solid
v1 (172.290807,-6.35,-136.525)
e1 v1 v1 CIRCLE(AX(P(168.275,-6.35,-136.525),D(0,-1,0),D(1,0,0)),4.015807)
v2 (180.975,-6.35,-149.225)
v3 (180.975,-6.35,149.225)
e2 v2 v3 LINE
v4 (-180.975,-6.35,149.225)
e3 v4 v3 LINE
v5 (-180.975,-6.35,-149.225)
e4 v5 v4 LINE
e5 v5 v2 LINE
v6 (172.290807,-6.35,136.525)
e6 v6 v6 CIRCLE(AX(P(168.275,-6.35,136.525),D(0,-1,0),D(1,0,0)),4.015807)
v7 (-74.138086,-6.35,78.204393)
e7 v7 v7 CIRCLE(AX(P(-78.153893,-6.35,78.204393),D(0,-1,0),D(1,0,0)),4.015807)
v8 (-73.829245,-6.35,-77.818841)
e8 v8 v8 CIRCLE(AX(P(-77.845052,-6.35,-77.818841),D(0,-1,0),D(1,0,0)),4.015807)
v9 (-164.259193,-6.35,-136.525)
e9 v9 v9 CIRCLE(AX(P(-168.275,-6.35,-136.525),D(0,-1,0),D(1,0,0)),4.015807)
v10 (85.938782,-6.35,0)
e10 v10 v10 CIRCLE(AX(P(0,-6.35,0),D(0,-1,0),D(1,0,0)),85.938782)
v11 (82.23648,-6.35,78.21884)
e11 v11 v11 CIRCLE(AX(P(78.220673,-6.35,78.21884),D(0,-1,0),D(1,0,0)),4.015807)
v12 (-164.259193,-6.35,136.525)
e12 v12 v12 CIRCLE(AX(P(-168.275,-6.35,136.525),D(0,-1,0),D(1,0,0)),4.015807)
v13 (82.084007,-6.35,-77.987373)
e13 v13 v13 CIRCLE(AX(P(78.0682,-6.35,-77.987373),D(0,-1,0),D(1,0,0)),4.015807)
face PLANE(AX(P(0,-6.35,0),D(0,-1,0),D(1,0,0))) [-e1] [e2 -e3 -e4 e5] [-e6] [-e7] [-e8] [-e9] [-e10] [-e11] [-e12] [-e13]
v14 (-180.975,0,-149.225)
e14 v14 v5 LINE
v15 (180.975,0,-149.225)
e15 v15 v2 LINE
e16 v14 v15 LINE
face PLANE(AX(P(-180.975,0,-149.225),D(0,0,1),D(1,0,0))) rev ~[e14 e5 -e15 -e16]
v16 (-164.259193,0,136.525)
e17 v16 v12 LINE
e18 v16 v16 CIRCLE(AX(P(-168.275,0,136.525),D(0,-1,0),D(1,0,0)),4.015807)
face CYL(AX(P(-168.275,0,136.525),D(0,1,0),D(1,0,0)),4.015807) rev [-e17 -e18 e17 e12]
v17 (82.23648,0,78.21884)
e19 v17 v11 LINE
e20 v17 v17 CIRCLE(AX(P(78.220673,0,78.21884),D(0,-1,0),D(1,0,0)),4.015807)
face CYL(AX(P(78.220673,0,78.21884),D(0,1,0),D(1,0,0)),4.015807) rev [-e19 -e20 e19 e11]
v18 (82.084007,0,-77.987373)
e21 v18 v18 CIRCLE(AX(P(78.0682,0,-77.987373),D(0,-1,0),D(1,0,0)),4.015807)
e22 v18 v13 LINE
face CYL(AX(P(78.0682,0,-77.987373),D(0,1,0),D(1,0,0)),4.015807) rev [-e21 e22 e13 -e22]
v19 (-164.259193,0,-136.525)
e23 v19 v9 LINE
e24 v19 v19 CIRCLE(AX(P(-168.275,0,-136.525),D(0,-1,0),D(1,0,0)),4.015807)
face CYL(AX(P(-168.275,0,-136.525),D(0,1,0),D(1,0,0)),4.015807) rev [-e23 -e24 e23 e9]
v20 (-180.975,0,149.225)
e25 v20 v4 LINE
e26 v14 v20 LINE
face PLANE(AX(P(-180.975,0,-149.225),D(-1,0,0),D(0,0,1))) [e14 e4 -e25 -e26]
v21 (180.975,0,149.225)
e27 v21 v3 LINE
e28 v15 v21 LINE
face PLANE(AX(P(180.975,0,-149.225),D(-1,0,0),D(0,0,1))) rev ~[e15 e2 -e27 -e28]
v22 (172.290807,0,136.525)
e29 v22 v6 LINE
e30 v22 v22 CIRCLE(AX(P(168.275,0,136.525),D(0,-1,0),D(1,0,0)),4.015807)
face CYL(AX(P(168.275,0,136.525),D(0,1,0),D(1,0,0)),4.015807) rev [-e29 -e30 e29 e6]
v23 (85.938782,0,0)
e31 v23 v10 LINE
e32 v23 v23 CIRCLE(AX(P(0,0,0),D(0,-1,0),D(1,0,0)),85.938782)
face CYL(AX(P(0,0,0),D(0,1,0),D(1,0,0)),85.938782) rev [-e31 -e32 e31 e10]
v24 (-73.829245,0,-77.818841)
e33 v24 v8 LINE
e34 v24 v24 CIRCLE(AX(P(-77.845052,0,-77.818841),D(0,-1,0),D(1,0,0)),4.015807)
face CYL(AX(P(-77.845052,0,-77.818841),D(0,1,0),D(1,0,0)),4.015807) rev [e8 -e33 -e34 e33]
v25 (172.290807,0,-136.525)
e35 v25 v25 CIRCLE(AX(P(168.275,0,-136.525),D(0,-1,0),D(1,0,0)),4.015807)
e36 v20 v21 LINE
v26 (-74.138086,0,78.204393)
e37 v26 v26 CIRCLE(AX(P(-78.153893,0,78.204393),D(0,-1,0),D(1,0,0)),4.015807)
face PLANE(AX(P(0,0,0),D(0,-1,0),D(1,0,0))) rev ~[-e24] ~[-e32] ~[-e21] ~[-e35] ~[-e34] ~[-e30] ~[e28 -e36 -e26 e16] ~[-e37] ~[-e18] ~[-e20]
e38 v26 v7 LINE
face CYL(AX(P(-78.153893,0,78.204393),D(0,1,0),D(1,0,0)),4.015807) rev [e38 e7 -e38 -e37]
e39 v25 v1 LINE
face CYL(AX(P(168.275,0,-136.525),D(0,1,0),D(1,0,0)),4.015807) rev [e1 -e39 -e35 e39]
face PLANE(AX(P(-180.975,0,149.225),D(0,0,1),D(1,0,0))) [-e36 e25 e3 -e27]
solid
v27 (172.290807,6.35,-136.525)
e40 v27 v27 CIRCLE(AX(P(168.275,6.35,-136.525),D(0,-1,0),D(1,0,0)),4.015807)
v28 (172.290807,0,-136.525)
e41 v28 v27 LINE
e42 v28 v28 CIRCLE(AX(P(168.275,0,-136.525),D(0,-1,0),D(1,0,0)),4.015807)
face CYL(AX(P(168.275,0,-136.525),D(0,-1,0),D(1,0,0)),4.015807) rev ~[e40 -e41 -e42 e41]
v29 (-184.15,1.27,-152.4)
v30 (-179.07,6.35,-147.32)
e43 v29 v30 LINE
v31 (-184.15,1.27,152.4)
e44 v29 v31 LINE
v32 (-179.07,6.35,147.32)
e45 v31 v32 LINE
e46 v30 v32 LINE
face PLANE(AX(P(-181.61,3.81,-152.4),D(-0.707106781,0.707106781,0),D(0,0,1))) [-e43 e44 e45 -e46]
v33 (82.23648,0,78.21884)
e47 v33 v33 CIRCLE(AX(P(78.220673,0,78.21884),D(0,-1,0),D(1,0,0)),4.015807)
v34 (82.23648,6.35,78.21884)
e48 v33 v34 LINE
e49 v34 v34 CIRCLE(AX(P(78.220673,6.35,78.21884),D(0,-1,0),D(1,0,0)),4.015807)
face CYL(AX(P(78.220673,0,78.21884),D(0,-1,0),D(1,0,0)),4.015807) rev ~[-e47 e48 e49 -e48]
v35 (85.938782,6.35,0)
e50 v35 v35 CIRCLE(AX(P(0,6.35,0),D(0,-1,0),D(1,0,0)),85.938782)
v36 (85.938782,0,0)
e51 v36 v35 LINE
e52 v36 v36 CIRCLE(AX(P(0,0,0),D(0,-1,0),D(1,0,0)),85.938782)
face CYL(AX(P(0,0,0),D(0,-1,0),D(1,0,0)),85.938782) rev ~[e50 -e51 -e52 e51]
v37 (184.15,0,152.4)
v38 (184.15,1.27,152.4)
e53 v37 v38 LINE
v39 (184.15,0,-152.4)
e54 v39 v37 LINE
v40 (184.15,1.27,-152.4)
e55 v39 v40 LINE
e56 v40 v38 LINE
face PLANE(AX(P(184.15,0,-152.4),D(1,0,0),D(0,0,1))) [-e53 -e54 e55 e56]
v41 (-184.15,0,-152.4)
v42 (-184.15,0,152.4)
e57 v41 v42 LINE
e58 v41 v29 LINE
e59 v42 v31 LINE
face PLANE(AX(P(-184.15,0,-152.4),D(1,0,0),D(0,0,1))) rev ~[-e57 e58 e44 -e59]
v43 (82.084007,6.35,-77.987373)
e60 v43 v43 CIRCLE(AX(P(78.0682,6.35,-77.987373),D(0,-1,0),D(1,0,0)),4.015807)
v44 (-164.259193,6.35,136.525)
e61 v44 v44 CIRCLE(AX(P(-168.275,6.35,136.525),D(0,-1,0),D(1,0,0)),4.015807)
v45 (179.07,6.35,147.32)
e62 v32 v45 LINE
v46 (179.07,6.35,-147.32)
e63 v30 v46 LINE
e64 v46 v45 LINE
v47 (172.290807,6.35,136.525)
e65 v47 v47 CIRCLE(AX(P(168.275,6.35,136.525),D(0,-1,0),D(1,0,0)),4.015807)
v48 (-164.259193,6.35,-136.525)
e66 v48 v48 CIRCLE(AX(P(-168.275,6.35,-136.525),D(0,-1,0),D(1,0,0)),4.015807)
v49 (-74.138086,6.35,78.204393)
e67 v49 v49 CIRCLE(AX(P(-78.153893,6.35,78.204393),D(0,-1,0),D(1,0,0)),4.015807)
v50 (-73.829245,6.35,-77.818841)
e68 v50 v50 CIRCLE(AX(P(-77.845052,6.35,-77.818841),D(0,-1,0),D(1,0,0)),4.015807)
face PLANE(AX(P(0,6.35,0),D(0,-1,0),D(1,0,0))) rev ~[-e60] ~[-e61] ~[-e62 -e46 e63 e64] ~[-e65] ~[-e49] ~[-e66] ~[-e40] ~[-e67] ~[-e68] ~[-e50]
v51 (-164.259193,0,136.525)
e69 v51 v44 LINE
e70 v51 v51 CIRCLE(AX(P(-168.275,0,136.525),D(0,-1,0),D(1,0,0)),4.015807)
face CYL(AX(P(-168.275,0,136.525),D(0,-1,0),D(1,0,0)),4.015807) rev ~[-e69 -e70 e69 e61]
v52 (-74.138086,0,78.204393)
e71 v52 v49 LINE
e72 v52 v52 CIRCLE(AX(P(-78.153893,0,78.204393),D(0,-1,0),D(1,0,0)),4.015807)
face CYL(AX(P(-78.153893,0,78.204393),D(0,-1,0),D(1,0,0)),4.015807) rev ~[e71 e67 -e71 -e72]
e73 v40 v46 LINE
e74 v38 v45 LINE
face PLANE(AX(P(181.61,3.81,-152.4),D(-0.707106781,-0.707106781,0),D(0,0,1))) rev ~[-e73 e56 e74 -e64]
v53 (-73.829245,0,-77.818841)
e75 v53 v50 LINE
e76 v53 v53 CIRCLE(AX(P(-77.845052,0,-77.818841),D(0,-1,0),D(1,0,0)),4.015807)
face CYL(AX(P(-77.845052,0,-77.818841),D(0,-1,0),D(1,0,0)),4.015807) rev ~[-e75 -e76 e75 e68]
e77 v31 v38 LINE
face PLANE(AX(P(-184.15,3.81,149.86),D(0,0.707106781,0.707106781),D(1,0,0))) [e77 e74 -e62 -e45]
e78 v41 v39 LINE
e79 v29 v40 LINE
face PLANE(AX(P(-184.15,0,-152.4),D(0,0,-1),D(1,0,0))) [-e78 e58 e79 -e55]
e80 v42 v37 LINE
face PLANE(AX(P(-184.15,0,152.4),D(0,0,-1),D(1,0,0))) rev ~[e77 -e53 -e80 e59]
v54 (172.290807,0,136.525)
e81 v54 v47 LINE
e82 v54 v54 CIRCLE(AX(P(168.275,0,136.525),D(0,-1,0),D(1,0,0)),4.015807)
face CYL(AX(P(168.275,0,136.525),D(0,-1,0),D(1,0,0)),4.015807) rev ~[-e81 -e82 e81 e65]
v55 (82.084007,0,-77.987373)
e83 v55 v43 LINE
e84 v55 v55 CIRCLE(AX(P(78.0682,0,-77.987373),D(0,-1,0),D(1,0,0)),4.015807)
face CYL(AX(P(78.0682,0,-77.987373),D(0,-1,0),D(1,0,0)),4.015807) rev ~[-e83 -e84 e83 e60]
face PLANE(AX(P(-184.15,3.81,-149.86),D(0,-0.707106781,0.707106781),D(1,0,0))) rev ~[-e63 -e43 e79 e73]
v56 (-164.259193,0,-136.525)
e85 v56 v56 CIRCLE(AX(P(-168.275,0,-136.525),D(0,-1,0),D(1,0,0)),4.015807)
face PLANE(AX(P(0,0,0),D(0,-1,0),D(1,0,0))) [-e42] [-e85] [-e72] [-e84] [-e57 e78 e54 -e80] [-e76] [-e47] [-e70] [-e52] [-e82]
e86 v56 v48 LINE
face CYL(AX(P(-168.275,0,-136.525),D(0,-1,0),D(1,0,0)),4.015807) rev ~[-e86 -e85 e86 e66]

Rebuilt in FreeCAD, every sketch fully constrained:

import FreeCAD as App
import Part
import Sketcher
Q = App.Units.Quantity


def edges_at(feature, points):
    """Names of the edges that pass closest to the given points."""
    edges = feature.Shape.Edges
    near = lambda p: min(range(len(edges)), key=lambda i: edges[i].distToShape(Part.Vertex(*p))[0])
    return sorted({f"Edge{near(p) + 1}" for p in points})


def add_polygon(sketch, points):
    """Adds a closed chain of lines whose ends are joined by coincident constraints."""
    first, n = sketch.GeometryCount, len(points)
    for a, b in zip(points, points[1:] + points[:1]):
        sketch.addGeometry(Part.LineSegment(App.Vector(*a, 0), App.Vector(*b, 0)), False)
    for i in range(n):
        sketch.addConstraint(Sketcher.Constraint("Coincident", first + i, 2, first + (i + 1) % n, 1))

doc = App.newDocument("Part")
params = doc.addObject("Spreadsheet::Sheet", "Params")
for row, (alias, value) in enumerate([
    ("sketch1_width", "14.25 in"),
    ("sketch1_height", "11.75 in"),
    ("pad1_length", "0.25 in"),
    ("sketch2_height", "12 in"),
    ("sketch2_width", "14.5 in"),
    ("pad2_length", "0.25 in"),
    ("chamfer_size", "0.2 in"),
], start=1):
    params.set(f"A{row}", alias)
    params.set(f"B{row}", "=" + value)
    params.setAlias(f"B{row}", alias)

body = doc.addObject("PartDesign::Body", "Body")

# Sketch on XZ plane
sketch1 = doc.addObject("Sketcher::SketchObject", "Sketch")
body.addObject(sketch1)
sketch1.AttachmentSupport = (doc.XZ_Plane, [""])
sketch1.MapMode = "FlatFace"
add_polygon(sketch1, [(-180.975, 149.225), (-180.975, -149.225), (180.975, -149.225), (180.975, 149.225)])  # lines 0-3
sketch1.addGeometry(Part.Circle(App.Vector(-168.275, -136.525, 0), App.Vector(0, 0, 1), 4.015807), False)  # 4
sketch1.addGeometry(Part.Circle(App.Vector(-77.845052, -77.818841, 0), App.Vector(0, 0, 1), 4.015807), False)  # 5
sketch1.addGeometry(Part.Circle(App.Vector(78.0682, -77.987373, 0), App.Vector(0, 0, 1), 4.015807), False)  # 6
sketch1.addGeometry(Part.Circle(App.Vector(168.275, -136.525, 0), App.Vector(0, 0, 1), 4.015807), False)  # 7
sketch1.addGeometry(Part.Circle(App.Vector(-168.275, 136.525, 0), App.Vector(0, 0, 1), 4.015807), False)  # 8
sketch1.addGeometry(Part.Circle(App.Vector(-78.153893, 78.204393, 0), App.Vector(0, 0, 1), 4.015807), False)  # 9
sketch1.addGeometry(Part.Circle(App.Vector(0, 0, 0), App.Vector(0, 0, 1), 85.938782), False)  # 10
sketch1.addGeometry(Part.Circle(App.Vector(78.220673, 78.21884, 0), App.Vector(0, 0, 1), 4.015807), False)  # 11
sketch1.addGeometry(Part.Circle(App.Vector(168.275, 136.525, 0), App.Vector(0, 0, 1), 4.015807), False)  # 12
sketch1.addConstraint(Sketcher.Constraint("Vertical", 0))
sketch1.addConstraint(Sketcher.Constraint("Horizontal", 1))
sketch1.addConstraint(Sketcher.Constraint("Vertical", 2))
sketch1.addConstraint(Sketcher.Constraint("Horizontal", 3))
sketch1.addConstraint(Sketcher.Constraint("Coincident", 10, 3, -1, 1))
sketch1.addConstraint(Sketcher.Constraint("Equal", 4, 5))
sketch1.addConstraint(Sketcher.Constraint("Equal", 5, 6))
sketch1.addConstraint(Sketcher.Constraint("Equal", 6, 7))
sketch1.addConstraint(Sketcher.Constraint("Equal", 7, 8))
sketch1.addConstraint(Sketcher.Constraint("Equal", 8, 9))
sketch1.addConstraint(Sketcher.Constraint("Equal", 9, 11))
sketch1.addConstraint(Sketcher.Constraint("Equal", 11, 12))
sketch1.addConstraint(Sketcher.Constraint("Symmetric", 7, 3, 8, 3, -1, 1))
sketch1.addConstraint(Sketcher.Constraint("Symmetric", 4, 3, 12, 3, -1, 1))
sketch1.addConstraint(Sketcher.Constraint("Symmetric", 0, 2, 2, 2, -1, 1))
sketch1.addConstraint(Sketcher.Constraint("Symmetric", 4, 3, 7, 3, -2))
sketch1.addConstraint(Sketcher.Constraint("DistanceX", 1, 1, 1, 2, Q("14.25 in")))
sketch1.addConstraint(Sketcher.Constraint("DistanceY", 0, 2, 0, 1, Q("11.75 in")))
sketch1.addConstraint(Sketcher.Constraint("DistanceX", 0, 2, 4, 3, Q("0.5 in")))
sketch1.addConstraint(Sketcher.Constraint("DistanceY", 0, 2, 4, 3, Q("0.5 in")))
sketch1.addConstraint(Sketcher.Constraint("Diameter", 4, Q("8.031614 mm")))
sketch1.addConstraint(Sketcher.Constraint("Diameter", 10, Q("171.877564 mm")))
sketch1.addConstraint(Sketcher.Constraint("DistanceX", -1, 1, 6, 3, Q("78.0682 mm")))
sketch1.addConstraint(Sketcher.Constraint("DistanceX", 5, 3, -1, 1, Q("77.845052 mm")))
sketch1.addConstraint(Sketcher.Constraint("DistanceY", 5, 3, -1, 1, Q("77.818841 mm")))
sketch1.addConstraint(Sketcher.Constraint("DistanceY", -1, 1, 11, 3, Q("78.21884 mm")))
sketch1.addConstraint(Sketcher.Constraint("DistanceY", 6, 3, 5, 3, Q("0.168532 mm")))
sketch1.addConstraint(Sketcher.Constraint("DistanceX", 9, 3, 5, 3, Q("0.308841 mm")))
sketch1.addConstraint(Sketcher.Constraint("DistanceY", -1, 1, 9, 3, Q("78.204393 mm")))
sketch1.addConstraint(Sketcher.Constraint("DistanceX", -1, 1, 11, 3, Q("78.220673 mm")))
sketch1.setExpression("Constraints[20]", "Params.sketch1_width")
sketch1.setExpression("Constraints[21]", "Params.sketch1_height")
pad1 = doc.addObject("PartDesign::Pad", "Pad")
body.addObject(pad1)
pad1.Profile = sketch1
pad1.setExpression("Length", "Params.pad1_length")
body2 = doc.addObject("PartDesign::Body", "Body001")

# Sketch on XZ plane
sketch2 = doc.addObject("Sketcher::SketchObject", "Sketch001")
body2.addObject(sketch2)
sketch2.AttachmentSupport = (doc.getObject("XZ_Plane001"), [""])
sketch2.MapMode = "FlatFace"
add_polygon(sketch2, [(-184.15, 152.4), (-184.15, -152.4), (184.15, -152.4), (184.15, 152.4)])  # lines 0-3
sketch2.addGeometry(Part.Circle(App.Vector(-168.275, -136.525, 0), App.Vector(0, 0, 1), 4.015807), False)  # 4
sketch2.addGeometry(Part.Circle(App.Vector(-77.845052, -77.818841, 0), App.Vector(0, 0, 1), 4.015807), False)  # 5
sketch2.addGeometry(Part.Circle(App.Vector(78.0682, -77.987373, 0), App.Vector(0, 0, 1), 4.015807), False)  # 6
sketch2.addGeometry(Part.Circle(App.Vector(168.275, -136.525, 0), App.Vector(0, 0, 1), 4.015807), False)  # 7
sketch2.addGeometry(Part.Circle(App.Vector(-168.275, 136.525, 0), App.Vector(0, 0, 1), 4.015807), False)  # 8
sketch2.addGeometry(Part.Circle(App.Vector(-78.153893, 78.204393, 0), App.Vector(0, 0, 1), 4.015807), False)  # 9
sketch2.addGeometry(Part.Circle(App.Vector(0, 0, 0), App.Vector(0, 0, 1), 85.938782), False)  # 10
sketch2.addGeometry(Part.Circle(App.Vector(78.220673, 78.21884, 0), App.Vector(0, 0, 1), 4.015807), False)  # 11
sketch2.addGeometry(Part.Circle(App.Vector(168.275, 136.525, 0), App.Vector(0, 0, 1), 4.015807), False)  # 12
sketch2.addConstraint(Sketcher.Constraint("Vertical", 0))
sketch2.addConstraint(Sketcher.Constraint("Horizontal", 1))
sketch2.addConstraint(Sketcher.Constraint("Vertical", 2))
sketch2.addConstraint(Sketcher.Constraint("Horizontal", 3))
sketch2.addConstraint(Sketcher.Constraint("Coincident", 10, 3, -1, 1))
sketch2.addConstraint(Sketcher.Constraint("Equal", 4, 5))
sketch2.addConstraint(Sketcher.Constraint("Equal", 5, 6))
sketch2.addConstraint(Sketcher.Constraint("Equal", 6, 7))
sketch2.addConstraint(Sketcher.Constraint("Equal", 7, 8))
sketch2.addConstraint(Sketcher.Constraint("Equal", 8, 9))
sketch2.addConstraint(Sketcher.Constraint("Equal", 9, 11))
sketch2.addConstraint(Sketcher.Constraint("Equal", 11, 12))
sketch2.addConstraint(Sketcher.Constraint("Symmetric", 7, 3, 8, 3, -1, 1))
sketch2.addConstraint(Sketcher.Constraint("Symmetric", 4, 3, 12, 3, -1, 1))
sketch2.addConstraint(Sketcher.Constraint("Symmetric", 0, 2, 2, 2, -1, 1))
sketch2.addConstraint(Sketcher.Constraint("Symmetric", 4, 3, 7, 3, -2))
sketch2.addConstraint(Sketcher.Constraint("DistanceY", 0, 2, 0, 1, Q("12 in")))
sketch2.addConstraint(Sketcher.Constraint("DistanceX", 1, 1, 1, 2, Q("14.5 in")))
sketch2.addConstraint(Sketcher.Constraint("DistanceX", 4, 3, 7, 3, Q("13.25 in")))
sketch2.addConstraint(Sketcher.Constraint("DistanceY", 4, 3, 8, 3, Q("10.75 in")))
sketch2.addConstraint(Sketcher.Constraint("Diameter", 4, Q("8.031614 mm")))
sketch2.addConstraint(Sketcher.Constraint("Diameter", 10, Q("171.877564 mm")))
sketch2.addConstraint(Sketcher.Constraint("DistanceX", -1, 1, 6, 3, Q("78.0682 mm")))
sketch2.addConstraint(Sketcher.Constraint("DistanceX", 5, 3, -1, 1, Q("77.845052 mm")))
sketch2.addConstraint(Sketcher.Constraint("DistanceY", 5, 3, -1, 1, Q("77.818841 mm")))
sketch2.addConstraint(Sketcher.Constraint("DistanceY", -1, 1, 11, 3, Q("78.21884 mm")))
sketch2.addConstraint(Sketcher.Constraint("DistanceY", 6, 3, 5, 3, Q("0.168532 mm")))
sketch2.addConstraint(Sketcher.Constraint("DistanceX", 9, 3, 5, 3, Q("0.308841 mm")))
sketch2.addConstraint(Sketcher.Constraint("DistanceY", -1, 1, 9, 3, Q("78.204393 mm")))
sketch2.addConstraint(Sketcher.Constraint("DistanceX", -1, 1, 11, 3, Q("78.220673 mm")))
sketch2.setExpression("Constraints[20]", "Params.sketch2_height")
sketch2.setExpression("Constraints[21]", "Params.sketch2_width")
pad2 = doc.addObject("PartDesign::Pad", "Pad001")
body2.addObject(pad2)
pad2.Profile = sketch2
pad2.setExpression("Length", "Params.pad2_length")
pad2.Reversed = True
doc.recompute()

chamfer = doc.addObject("PartDesign::Chamfer", "Chamfer")
body2.addObject(chamfer)
chamfer.Base = (pad2, edges_at(pad2, [
    (184.15, 6.35, 0),
    (0, 6.35, 152.4),
    (0, 6.35, -152.4),
    (-184.15, 6.35, 0),
]))
chamfer.setExpression("Size", "Params.chamfer_size")

doc.recompute()
